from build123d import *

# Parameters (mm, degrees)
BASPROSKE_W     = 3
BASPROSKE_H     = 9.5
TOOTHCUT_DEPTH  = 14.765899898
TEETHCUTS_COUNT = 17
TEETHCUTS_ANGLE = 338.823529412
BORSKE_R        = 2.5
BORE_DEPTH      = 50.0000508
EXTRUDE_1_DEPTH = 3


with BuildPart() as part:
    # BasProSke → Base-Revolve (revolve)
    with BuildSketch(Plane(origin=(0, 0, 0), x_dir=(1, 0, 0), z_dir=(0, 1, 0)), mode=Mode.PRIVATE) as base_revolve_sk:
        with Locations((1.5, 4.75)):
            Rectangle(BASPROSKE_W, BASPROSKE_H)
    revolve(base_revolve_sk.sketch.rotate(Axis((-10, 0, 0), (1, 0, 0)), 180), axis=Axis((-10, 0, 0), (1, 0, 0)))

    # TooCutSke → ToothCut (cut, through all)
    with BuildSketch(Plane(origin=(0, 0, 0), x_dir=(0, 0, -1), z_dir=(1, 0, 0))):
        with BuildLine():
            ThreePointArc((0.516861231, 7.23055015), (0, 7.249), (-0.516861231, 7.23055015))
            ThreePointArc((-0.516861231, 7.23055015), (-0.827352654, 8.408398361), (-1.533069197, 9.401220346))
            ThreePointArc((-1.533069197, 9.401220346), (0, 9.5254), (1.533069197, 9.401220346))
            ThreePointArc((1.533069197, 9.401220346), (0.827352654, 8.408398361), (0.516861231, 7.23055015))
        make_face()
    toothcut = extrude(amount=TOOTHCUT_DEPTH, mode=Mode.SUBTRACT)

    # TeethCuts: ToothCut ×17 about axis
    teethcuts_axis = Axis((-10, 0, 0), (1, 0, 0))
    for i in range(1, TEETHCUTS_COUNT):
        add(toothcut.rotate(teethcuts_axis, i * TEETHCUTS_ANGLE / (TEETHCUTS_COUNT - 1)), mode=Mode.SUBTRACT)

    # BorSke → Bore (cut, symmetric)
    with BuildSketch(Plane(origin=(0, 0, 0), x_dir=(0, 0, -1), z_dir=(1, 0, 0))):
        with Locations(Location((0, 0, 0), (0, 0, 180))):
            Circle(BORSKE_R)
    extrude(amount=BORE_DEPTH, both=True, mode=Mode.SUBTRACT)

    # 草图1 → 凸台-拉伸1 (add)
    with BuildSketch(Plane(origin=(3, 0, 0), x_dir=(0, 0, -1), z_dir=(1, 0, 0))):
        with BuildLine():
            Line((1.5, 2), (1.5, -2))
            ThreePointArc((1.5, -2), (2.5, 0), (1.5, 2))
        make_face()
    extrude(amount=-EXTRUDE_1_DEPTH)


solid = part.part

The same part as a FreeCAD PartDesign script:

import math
import FreeCAD as App
import Part
import Sketcher
Q = App.Units.Quantity


def add_polygon(sketch, points):
    """Adds a closed chain of lines whose ends are joined by coincident constraints."""
    first, n = sketch.GeometryCount, len(points)
    for a, b in zip(points, points[1:] + points[:1]):
        sketch.addGeometry(Part.LineSegment(App.Vector(*a, 0), App.Vector(*b, 0)), False)
    for i in range(n):
        sketch.addConstraint(Sketcher.Constraint("Coincident", first + i, 2, first + (i + 1) % n, 1))

doc = App.newDocument("Part")
body = doc.addObject("PartDesign::Body", "Body")

# Sketch on XZ plane
sketch1 = body.newObject("Sketcher::SketchObject", "Sketch")
sketch1.AttachmentSupport = (doc.getObject("XZ_Plane"), [""])
sketch1.MapMode = "FlatFace"
add_polygon(sketch1, [(0, -9.5), (0, 0), (3, 0), (3, -9.5)])  # lines 0-3
sketch1.addConstraint(Sketcher.Constraint("Vertical", 0))
sketch1.addConstraint(Sketcher.Constraint("Horizontal", 1))
sketch1.addConstraint(Sketcher.Constraint("Vertical", 2))
sketch1.addConstraint(Sketcher.Constraint("Horizontal", 3))
sketch1.addConstraint(Sketcher.Constraint("Coincident", 0, 2, -1, 1))
sketch1.addConstraint(Sketcher.Constraint("DistanceX", 1, 1, 1, 2, Q("3 mm")))
sketch1.addConstraint(Sketcher.Constraint("DistanceY", 0, 1, 0, 2, Q("9.5 mm")))
revolution = body.newObject("PartDesign::Revolution", "Revolution")
revolution.Profile = sketch1
revolution.ReferenceAxis = (sketch1, ["H_Axis"])
revolution.Angle = 360

# Sketch on YZ plane
sketch2 = body.newObject("Sketcher::SketchObject", "Sketch001")
sketch2.AttachmentSupport = (doc.getObject("YZ_Plane"), [""])
sketch2.MapMode = "FlatFace"
sketch2.addGeometry(Part.ArcOfCircle(Part.Circle(App.Vector(0, 0, 0), App.Vector(0, 0, 1), 7.2), math.radians(-4.09), math.radians(4.09)), False)
sketch2.addGeometry(Part.ArcOfCircle(Part.Circle(App.Vector(7, -3.9, 0), App.Vector(0, 0, 1), 3.4), math.radians(44), math.radians(86)), False)
sketch2.addGeometry(Part.ArcOfCircle(Part.Circle(App.Vector(0, 0, 0), App.Vector(0, 0, 1), 9.5), math.radians(-9.26), math.radians(9.26)), False)
sketch2.addGeometry(Part.ArcOfCircle(Part.Circle(App.Vector(7, 3.9, 0), App.Vector(0, 0, 1), 3.4), math.radians(-86), math.radians(-44)), False)
sketch2.addConstraint(Sketcher.Constraint("Coincident", 0, 1, 1, 2))
sketch2.addConstraint(Sketcher.Constraint("Coincident", 1, 1, 2, 1))
sketch2.addConstraint(Sketcher.Constraint("Coincident", 2, 2, 3, 2))
sketch2.addConstraint(Sketcher.Constraint("Coincident", 3, 1, 0, 2))
sketch2.addConstraint(Sketcher.Constraint("Coincident", 0, 3, -1, 1))
sketch2.addConstraint(Sketcher.Constraint("Coincident", 2, 3, -1, 1))
sketch2.addConstraint(Sketcher.Constraint("Equal", 1, 3))
sketch2.addConstraint(Sketcher.Constraint("Symmetric", 1, 3, 3, 3, -1))
sketch2.addConstraint(Sketcher.Constraint("Radius", 1, Q("3.4 mm")))
sketch2.addConstraint(Sketcher.Constraint("Radius", 0, Q("7.249 mm")))
sketch2.addConstraint(Sketcher.Constraint("Radius", 2, Q("9.5254 mm")))
sketch2.addConstraint(Sketcher.Constraint("DistanceX", -1, 1, 0, 1, Q("7.23055 mm")))
sketch2.addConstraint(Sketcher.Constraint("DistanceX", -1, 1, 1, 1, Q("9.40122 mm")))
pocket1 = body.newObject("PartDesign::Pocket", "Pocket")
pocket1.Profile = sketch2
pocket1.Type = "ThroughAll"
pocket1.Reversed = True
doc.recompute()

polarpattern = body.newObject("PartDesign::PolarPattern", "PolarPattern")
polarpattern.Originals = [pocket1]
polarpattern.Axis = (doc.getObject("X_Axis"), [""])
polarpattern.Angle = 360
polarpattern.Occurrences = 17
body.Tip = polarpattern

# Sketch on YZ plane
sketch3 = body.newObject("Sketcher::SketchObject", "Sketch002")
sketch3.AttachmentSupport = (doc.getObject("YZ_Plane"), [""])
sketch3.MapMode = "FlatFace"
sketch3.addGeometry(Part.Circle(App.Vector(0, 0, 0), App.Vector(0, 0, 1), 2.5), False)
sketch3.addConstraint(Sketcher.Constraint("Coincident", 0, 3, -1, 1))
sketch3.addConstraint(Sketcher.Constraint("Diameter", 0, Q("5 mm")))
pocket2 = body.newObject("PartDesign::Pocket", "Pocket001")
pocket2.Profile = sketch3
pocket2.Length = 100.000102
pocket2.Midplane = True

# Sketch on YZ plane
sketch4 = body.newObject("Sketcher::SketchObject", "Sketch003")
sketch4.AttachmentSupport = (doc.getObject("YZ_Plane"), [""])
sketch4.MapMode = "FlatFace"
sketch4.AttachmentOffset = App.Placement(App.Vector(0, 0, 3), App.Rotation())
sketch4.addGeometry(Part.LineSegment(App.Vector(2, -1.5, 0), App.Vector(-2, -1.5, 0)), False)
sketch4.addGeometry(Part.ArcOfCircle(Part.Circle(App.Vector(0, 0, 0), App.Vector(0, 0, 1), 2.5), math.radians(-143), math.radians(-37)), False)
sketch4.addConstraint(Sketcher.Constraint("Coincident", 0, 1, 1, 2))
sketch4.addConstraint(Sketcher.Constraint("Coincident", 1, 1, 0, 2))
sketch4.addConstraint(Sketcher.Constraint("Horizontal", 0))
sketch4.addConstraint(Sketcher.Constraint("Coincident", 1, 3, -1, 1))
sketch4.addConstraint(Sketcher.Constraint("Radius", 1, Q("2.5 mm")))
sketch4.addConstraint(Sketcher.Constraint("DistanceX", 0, 2, 0, 1, Q("4 mm")))
pad1 = body.newObject("PartDesign::Pad", "Pad")
pad1.Profile = sketch4
pad1.Length = 3
pad1.Reversed = True

doc.recompute()
